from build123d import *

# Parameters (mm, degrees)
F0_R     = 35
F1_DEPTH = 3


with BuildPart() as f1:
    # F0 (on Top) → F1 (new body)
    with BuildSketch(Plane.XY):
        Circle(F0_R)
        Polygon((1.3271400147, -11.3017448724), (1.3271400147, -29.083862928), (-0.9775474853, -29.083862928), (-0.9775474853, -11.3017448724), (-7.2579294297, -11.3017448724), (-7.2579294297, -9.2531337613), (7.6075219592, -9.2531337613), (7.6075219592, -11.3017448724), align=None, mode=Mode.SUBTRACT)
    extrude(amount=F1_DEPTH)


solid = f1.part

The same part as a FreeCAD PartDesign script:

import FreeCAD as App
import Part
import Sketcher

doc = App.newDocument("Part")
body = doc.addObject("PartDesign::Body", "Body")

sketch1 = doc.addObject("Sketcher::SketchObject", "Sketch")
body.addObject(sketch1)
sketch1.AttachmentSupport = (doc.XY_Plane, [""])
sketch1.MapMode = "FlatFace"
sketch1.addGeometry(Part.Circle(App.Vector(0, 0, 0), App.Vector(0, 0, 1), 35), False)
sketch1.addGeometry(Part.LineSegment(App.Vector(7.607522, -11.301745, 0), App.Vector(1.32714, -11.301745, 0)), False)
sketch1.addGeometry(Part.LineSegment(App.Vector(1.32714, -11.301745, 0), App.Vector(1.32714, -29.083863, 0)), False)
sketch1.addGeometry(Part.LineSegment(App.Vector(1.32714, -29.083863, 0), App.Vector(-0.977547, -29.083863, 0)), False)
sketch1.addGeometry(Part.LineSegment(App.Vector(-0.977547, -29.083863, 0), App.Vector(-0.977547, -11.301745, 0)), False)
sketch1.addGeometry(Part.LineSegment(App.Vector(-0.977547, -11.301745, 0), App.Vector(-7.257929, -11.301745, 0)), False)
sketch1.addGeometry(Part.LineSegment(App.Vector(-7.257929, -11.301745, 0), App.Vector(-7.257929, -9.253134, 0)), False)
sketch1.addGeometry(Part.LineSegment(App.Vector(-7.257929, -9.253134, 0), App.Vector(7.607522, -9.253134, 0)), False)
sketch1.addGeometry(Part.LineSegment(App.Vector(7.607522, -9.253134, 0), App.Vector(7.607522, -11.301745, 0)), False)
sketch1.addConstraint(Sketcher.Constraint("Coincident", 1, 2, 2, 1))
sketch1.addConstraint(Sketcher.Constraint("Coincident", 2, 2, 3, 1))
sketch1.addConstraint(Sketcher.Constraint("Coincident", 3, 2, 4, 1))
sketch1.addConstraint(Sketcher.Constraint("Coincident", 4, 2, 5, 1))
sketch1.addConstraint(Sketcher.Constraint("Coincident", 5, 2, 6, 1))
sketch1.addConstraint(Sketcher.Constraint("Coincident", 6, 2, 7, 1))
sketch1.addConstraint(Sketcher.Constraint("Coincident", 7, 2, 8, 1))
sketch1.addConstraint(Sketcher.Constraint("Coincident", 8, 2, 1, 1))
sketch1.addConstraint(Sketcher.Constraint("Horizontal", 1))
sketch1.addConstraint(Sketcher.Constraint("Vertical", 2))
sketch1.addConstraint(Sketcher.Constraint("Horizontal", 3))
sketch1.addConstraint(Sketcher.Constraint("Vertical", 4))
sketch1.addConstraint(Sketcher.Constraint("Horizontal", 5))
sketch1.addConstraint(Sketcher.Constraint("Vertical", 6))
sketch1.addConstraint(Sketcher.Constraint("Horizontal", 7))
sketch1.addConstraint(Sketcher.Constraint("Vertical", 8))
sketch1.addConstraint(Sketcher.Constraint("Coincident", 0, 3, -1, 1))
sketch1.addConstraint(Sketcher.Constraint("Horizontal", 1, 2, 4, 2))
sketch1.addConstraint(Sketcher.Constraint("Equal", 1, 5))
sketch1.addConstraint(Sketcher.Constraint("Diameter", 0, 70.0))
sketch1.addConstraint(Sketcher.Constraint("DistanceX", 1, 2, 1, 1, 6.280382))
sketch1.addConstraint(Sketcher.Constraint("DistanceX", 7, 1, 7, 2, 14.865451))
sketch1.addConstraint(Sketcher.Constraint("DistanceY", 2, 2, 2, 1, 17.782118))
sketch1.addConstraint(Sketcher.Constraint("DistanceY", 6, 1, 6, 2, 2.048611))
sketch1.addConstraint(Sketcher.Constraint("DistanceX", -1, 1, 1, 2, 1.32714))
sketch1.addConstraint(Sketcher.Constraint("DistanceY", 1, 2, -1, 1, 11.301745))
pad1 = doc.addObject("PartDesign::Pad", "Pad")
body.addObject(pad1)
pad1.Profile = sketch1
pad1.Length = 3

doc.recompute()
